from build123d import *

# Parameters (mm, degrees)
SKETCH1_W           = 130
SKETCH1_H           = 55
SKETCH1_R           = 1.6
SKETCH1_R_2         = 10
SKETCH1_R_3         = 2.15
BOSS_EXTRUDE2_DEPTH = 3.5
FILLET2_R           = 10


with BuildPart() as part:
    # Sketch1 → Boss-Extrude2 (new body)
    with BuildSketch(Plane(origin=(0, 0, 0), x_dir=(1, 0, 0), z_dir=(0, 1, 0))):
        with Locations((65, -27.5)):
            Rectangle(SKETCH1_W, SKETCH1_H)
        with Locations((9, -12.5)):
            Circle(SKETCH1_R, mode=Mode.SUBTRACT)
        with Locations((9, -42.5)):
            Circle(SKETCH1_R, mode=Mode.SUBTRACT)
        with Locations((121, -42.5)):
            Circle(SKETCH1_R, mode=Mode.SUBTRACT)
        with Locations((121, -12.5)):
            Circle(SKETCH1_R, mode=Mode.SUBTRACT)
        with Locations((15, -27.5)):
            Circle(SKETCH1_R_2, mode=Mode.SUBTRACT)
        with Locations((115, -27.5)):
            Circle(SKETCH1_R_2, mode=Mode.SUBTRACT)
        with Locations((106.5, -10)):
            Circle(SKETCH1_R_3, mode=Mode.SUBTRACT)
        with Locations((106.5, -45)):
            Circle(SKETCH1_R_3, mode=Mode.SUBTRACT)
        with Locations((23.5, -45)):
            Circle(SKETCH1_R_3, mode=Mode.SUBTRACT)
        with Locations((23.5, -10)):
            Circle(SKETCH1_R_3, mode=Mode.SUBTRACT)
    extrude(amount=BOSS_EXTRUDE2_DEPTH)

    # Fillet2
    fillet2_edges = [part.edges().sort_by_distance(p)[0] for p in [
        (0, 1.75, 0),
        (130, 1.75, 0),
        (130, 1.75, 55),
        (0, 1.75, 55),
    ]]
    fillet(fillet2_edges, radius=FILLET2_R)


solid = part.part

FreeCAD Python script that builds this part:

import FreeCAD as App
import Part
import Sketcher

V = App.Vector
Q = App.Units.Quantity


def edges_at(feature, points):
    """Names of the edges that pass closest to the given points."""
    edges = feature.Shape.Edges
    near = lambda p: min(range(len(edges)), key=lambda i: edges[i].distToShape(Part.Vertex(*p))[0])
    return sorted({f"Edge{near(p) + 1}" for p in points})


def add_polygon(sketch, points):
    """Adds a closed chain of lines whose ends are joined by coincident constraints."""
    first, n = sketch.GeometryCount, len(points)
    for a, b in zip(points, points[1:] + points[:1]):
        sketch.addGeometry(Part.LineSegment(App.Vector(*a, 0), App.Vector(*b, 0)), False)
    for i in range(n):
        sketch.addConstraint(Sketcher.Constraint("Coincident", first + i, 2, first + (i + 1) % n, 1))

doc = App.newDocument("Part")
body = doc.addObject("PartDesign::Body", "Body")

# Sketch on XZ plane
sketch1 = body.newObject("Sketcher::SketchObject", "Sketch")
sketch1.AttachmentSupport = (doc.getObject("XZ_Plane"), [""])
sketch1.MapMode = "FlatFace"
add_polygon(sketch1, [(0, 0), (0, 55), (130, 55), (130, 0)])  # lines 0-3
sketch1.addGeometry(Part.Circle(V(9, 42.5, 0), V(0, 0, 1), 1.6), False)  # 4
sketch1.addGeometry(Part.Circle(V(23.5, 45, 0), V(0, 0, 1), 2.1), False)  # 5
sketch1.addGeometry(Part.Circle(V(106.5, 45, 0), V(0, 0, 1), 2.1), False)  # 6
sketch1.addGeometry(Part.Circle(V(121, 42.5, 0), V(0, 0, 1), 1.6), False)  # 7
sketch1.addGeometry(Part.Circle(V(15, 27.5, 0), V(0, 0, 1), 10), False)  # 8
sketch1.addGeometry(Part.Circle(V(9, 12.5, 0), V(0, 0, 1), 1.6), False)  # 9
sketch1.addGeometry(Part.Circle(V(23.5, 10, 0), V(0, 0, 1), 2.1), False)  # 10
sketch1.addGeometry(Part.Circle(V(115, 27.5, 0), V(0, 0, 1), 10), False)  # 11
sketch1.addGeometry(Part.Circle(V(106.5, 10, 0), V(0, 0, 1), 2.1), False)  # 12
sketch1.addGeometry(Part.Circle(V(121, 12.5, 0), V(0, 0, 1), 1.6), False)  # 13
sketch1.addConstraint(Sketcher.Constraint("Vertical", 0))
sketch1.addConstraint(Sketcher.Constraint("Horizontal", 1))
sketch1.addConstraint(Sketcher.Constraint("Vertical", 2))
sketch1.addConstraint(Sketcher.Constraint("Horizontal", 3))
sketch1.addConstraint(Sketcher.Constraint("Coincident", 3, 2, -1, 1))
sketch1.addConstraint(Sketcher.Constraint("Equal", 5, 6))
sketch1.addConstraint(Sketcher.Constraint("Equal", 4, 7))
sketch1.addConstraint(Sketcher.Constraint("Equal", 7, 9))
sketch1.addConstraint(Sketcher.Constraint("Equal", 6, 10))
sketch1.addConstraint(Sketcher.Constraint("Equal", 8, 11))
sketch1.addConstraint(Sketcher.Constraint("Equal", 10, 12))
sketch1.addConstraint(Sketcher.Constraint("Equal", 9, 13))
sketch1.addConstraint(Sketcher.Constraint("Horizontal", 5, 3, 6, 3))
sketch1.addConstraint(Sketcher.Constraint("Horizontal", 4, 3, 7, 3))
sketch1.addConstraint(Sketcher.Constraint("Horizontal", 8, 3, 11, 3))
sketch1.addConstraint(Sketcher.Constraint("Horizontal", 10, 3, 12, 3))
sketch1.addConstraint(Sketcher.Constraint("Horizontal", 9, 3, 13, 3))
sketch1.addConstraint(Sketcher.Constraint("Vertical", 4, 3, 9, 3))
sketch1.addConstraint(Sketcher.Constraint("Vertical", 5, 3, 10, 3))
sketch1.addConstraint(Sketcher.Constraint("Vertical", 6, 3, 12, 3))
sketch1.addConstraint(Sketcher.Constraint("Vertical", 7, 3, 13, 3))
sketch1.addConstraint(Sketcher.Constraint("Diameter", 8, Q("20 mm")))
sketch1.addConstraint(Sketcher.Constraint("Diameter", 4, Q("3.2 mm")))
sketch1.addConstraint(Sketcher.Constraint("Diameter", 5, Q("4.3 mm")))
sketch1.addConstraint(Sketcher.Constraint("DistanceX", 1, 1, 1, 2, Q("130 mm")))
sketch1.addConstraint(Sketcher.Constraint("DistanceY", 0, 1, 0, 2, Q("55 mm")))
sketch1.addConstraint(Sketcher.Constraint("DistanceX", -1, 1, 4, 3, Q("9 mm")))
sketch1.addConstraint(Sketcher.Constraint("DistanceY", -1, 1, 5, 3, Q("45 mm")))
sketch1.addConstraint(Sketcher.Constraint("DistanceX", -1, 1, 7, 3, Q("121 mm")))
sketch1.addConstraint(Sketcher.Constraint("DistanceX", -1, 1, 8, 3, Q("15 mm")))
sketch1.addConstraint(Sketcher.Constraint("DistanceY", -1, 1, 10, 3, Q("10 mm")))
sketch1.addConstraint(Sketcher.Constraint("DistanceX", -1, 1, 11, 3, Q("115 mm")))
sketch1.addConstraint(Sketcher.Constraint("DistanceX", 5, 3, 6, 3, Q("83 mm")))
sketch1.addConstraint(Sketcher.Constraint("DistanceY", 8, 3, 4, 3, Q("15 mm")))
sketch1.addConstraint(Sketcher.Constraint("DistanceY", 9, 3, 8, 3, Q("15 mm")))
sketch1.addConstraint(Sketcher.Constraint("DistanceY", -1, 1, 4, 3, Q("42.5 mm")))
sketch1.addConstraint(Sketcher.Constraint("DistanceX", -1, 1, 5, 3, Q("23.5 mm")))
pad1 = body.newObject("PartDesign::Pad", "Pad")
pad1.Profile = sketch1
pad1.Length = 3.5
pad1.Reversed = True
doc.recompute()

fillet = body.newObject("PartDesign::Fillet", "Fillet")
fillet.Base = (pad1, edges_at(pad1, [
    (0, 1.75, 0),
    (130, 1.75, 0),
    (130, 1.75, 55),
    (0, 1.75, 55),
]))
fillet.Radius = 10

doc.recompute()
